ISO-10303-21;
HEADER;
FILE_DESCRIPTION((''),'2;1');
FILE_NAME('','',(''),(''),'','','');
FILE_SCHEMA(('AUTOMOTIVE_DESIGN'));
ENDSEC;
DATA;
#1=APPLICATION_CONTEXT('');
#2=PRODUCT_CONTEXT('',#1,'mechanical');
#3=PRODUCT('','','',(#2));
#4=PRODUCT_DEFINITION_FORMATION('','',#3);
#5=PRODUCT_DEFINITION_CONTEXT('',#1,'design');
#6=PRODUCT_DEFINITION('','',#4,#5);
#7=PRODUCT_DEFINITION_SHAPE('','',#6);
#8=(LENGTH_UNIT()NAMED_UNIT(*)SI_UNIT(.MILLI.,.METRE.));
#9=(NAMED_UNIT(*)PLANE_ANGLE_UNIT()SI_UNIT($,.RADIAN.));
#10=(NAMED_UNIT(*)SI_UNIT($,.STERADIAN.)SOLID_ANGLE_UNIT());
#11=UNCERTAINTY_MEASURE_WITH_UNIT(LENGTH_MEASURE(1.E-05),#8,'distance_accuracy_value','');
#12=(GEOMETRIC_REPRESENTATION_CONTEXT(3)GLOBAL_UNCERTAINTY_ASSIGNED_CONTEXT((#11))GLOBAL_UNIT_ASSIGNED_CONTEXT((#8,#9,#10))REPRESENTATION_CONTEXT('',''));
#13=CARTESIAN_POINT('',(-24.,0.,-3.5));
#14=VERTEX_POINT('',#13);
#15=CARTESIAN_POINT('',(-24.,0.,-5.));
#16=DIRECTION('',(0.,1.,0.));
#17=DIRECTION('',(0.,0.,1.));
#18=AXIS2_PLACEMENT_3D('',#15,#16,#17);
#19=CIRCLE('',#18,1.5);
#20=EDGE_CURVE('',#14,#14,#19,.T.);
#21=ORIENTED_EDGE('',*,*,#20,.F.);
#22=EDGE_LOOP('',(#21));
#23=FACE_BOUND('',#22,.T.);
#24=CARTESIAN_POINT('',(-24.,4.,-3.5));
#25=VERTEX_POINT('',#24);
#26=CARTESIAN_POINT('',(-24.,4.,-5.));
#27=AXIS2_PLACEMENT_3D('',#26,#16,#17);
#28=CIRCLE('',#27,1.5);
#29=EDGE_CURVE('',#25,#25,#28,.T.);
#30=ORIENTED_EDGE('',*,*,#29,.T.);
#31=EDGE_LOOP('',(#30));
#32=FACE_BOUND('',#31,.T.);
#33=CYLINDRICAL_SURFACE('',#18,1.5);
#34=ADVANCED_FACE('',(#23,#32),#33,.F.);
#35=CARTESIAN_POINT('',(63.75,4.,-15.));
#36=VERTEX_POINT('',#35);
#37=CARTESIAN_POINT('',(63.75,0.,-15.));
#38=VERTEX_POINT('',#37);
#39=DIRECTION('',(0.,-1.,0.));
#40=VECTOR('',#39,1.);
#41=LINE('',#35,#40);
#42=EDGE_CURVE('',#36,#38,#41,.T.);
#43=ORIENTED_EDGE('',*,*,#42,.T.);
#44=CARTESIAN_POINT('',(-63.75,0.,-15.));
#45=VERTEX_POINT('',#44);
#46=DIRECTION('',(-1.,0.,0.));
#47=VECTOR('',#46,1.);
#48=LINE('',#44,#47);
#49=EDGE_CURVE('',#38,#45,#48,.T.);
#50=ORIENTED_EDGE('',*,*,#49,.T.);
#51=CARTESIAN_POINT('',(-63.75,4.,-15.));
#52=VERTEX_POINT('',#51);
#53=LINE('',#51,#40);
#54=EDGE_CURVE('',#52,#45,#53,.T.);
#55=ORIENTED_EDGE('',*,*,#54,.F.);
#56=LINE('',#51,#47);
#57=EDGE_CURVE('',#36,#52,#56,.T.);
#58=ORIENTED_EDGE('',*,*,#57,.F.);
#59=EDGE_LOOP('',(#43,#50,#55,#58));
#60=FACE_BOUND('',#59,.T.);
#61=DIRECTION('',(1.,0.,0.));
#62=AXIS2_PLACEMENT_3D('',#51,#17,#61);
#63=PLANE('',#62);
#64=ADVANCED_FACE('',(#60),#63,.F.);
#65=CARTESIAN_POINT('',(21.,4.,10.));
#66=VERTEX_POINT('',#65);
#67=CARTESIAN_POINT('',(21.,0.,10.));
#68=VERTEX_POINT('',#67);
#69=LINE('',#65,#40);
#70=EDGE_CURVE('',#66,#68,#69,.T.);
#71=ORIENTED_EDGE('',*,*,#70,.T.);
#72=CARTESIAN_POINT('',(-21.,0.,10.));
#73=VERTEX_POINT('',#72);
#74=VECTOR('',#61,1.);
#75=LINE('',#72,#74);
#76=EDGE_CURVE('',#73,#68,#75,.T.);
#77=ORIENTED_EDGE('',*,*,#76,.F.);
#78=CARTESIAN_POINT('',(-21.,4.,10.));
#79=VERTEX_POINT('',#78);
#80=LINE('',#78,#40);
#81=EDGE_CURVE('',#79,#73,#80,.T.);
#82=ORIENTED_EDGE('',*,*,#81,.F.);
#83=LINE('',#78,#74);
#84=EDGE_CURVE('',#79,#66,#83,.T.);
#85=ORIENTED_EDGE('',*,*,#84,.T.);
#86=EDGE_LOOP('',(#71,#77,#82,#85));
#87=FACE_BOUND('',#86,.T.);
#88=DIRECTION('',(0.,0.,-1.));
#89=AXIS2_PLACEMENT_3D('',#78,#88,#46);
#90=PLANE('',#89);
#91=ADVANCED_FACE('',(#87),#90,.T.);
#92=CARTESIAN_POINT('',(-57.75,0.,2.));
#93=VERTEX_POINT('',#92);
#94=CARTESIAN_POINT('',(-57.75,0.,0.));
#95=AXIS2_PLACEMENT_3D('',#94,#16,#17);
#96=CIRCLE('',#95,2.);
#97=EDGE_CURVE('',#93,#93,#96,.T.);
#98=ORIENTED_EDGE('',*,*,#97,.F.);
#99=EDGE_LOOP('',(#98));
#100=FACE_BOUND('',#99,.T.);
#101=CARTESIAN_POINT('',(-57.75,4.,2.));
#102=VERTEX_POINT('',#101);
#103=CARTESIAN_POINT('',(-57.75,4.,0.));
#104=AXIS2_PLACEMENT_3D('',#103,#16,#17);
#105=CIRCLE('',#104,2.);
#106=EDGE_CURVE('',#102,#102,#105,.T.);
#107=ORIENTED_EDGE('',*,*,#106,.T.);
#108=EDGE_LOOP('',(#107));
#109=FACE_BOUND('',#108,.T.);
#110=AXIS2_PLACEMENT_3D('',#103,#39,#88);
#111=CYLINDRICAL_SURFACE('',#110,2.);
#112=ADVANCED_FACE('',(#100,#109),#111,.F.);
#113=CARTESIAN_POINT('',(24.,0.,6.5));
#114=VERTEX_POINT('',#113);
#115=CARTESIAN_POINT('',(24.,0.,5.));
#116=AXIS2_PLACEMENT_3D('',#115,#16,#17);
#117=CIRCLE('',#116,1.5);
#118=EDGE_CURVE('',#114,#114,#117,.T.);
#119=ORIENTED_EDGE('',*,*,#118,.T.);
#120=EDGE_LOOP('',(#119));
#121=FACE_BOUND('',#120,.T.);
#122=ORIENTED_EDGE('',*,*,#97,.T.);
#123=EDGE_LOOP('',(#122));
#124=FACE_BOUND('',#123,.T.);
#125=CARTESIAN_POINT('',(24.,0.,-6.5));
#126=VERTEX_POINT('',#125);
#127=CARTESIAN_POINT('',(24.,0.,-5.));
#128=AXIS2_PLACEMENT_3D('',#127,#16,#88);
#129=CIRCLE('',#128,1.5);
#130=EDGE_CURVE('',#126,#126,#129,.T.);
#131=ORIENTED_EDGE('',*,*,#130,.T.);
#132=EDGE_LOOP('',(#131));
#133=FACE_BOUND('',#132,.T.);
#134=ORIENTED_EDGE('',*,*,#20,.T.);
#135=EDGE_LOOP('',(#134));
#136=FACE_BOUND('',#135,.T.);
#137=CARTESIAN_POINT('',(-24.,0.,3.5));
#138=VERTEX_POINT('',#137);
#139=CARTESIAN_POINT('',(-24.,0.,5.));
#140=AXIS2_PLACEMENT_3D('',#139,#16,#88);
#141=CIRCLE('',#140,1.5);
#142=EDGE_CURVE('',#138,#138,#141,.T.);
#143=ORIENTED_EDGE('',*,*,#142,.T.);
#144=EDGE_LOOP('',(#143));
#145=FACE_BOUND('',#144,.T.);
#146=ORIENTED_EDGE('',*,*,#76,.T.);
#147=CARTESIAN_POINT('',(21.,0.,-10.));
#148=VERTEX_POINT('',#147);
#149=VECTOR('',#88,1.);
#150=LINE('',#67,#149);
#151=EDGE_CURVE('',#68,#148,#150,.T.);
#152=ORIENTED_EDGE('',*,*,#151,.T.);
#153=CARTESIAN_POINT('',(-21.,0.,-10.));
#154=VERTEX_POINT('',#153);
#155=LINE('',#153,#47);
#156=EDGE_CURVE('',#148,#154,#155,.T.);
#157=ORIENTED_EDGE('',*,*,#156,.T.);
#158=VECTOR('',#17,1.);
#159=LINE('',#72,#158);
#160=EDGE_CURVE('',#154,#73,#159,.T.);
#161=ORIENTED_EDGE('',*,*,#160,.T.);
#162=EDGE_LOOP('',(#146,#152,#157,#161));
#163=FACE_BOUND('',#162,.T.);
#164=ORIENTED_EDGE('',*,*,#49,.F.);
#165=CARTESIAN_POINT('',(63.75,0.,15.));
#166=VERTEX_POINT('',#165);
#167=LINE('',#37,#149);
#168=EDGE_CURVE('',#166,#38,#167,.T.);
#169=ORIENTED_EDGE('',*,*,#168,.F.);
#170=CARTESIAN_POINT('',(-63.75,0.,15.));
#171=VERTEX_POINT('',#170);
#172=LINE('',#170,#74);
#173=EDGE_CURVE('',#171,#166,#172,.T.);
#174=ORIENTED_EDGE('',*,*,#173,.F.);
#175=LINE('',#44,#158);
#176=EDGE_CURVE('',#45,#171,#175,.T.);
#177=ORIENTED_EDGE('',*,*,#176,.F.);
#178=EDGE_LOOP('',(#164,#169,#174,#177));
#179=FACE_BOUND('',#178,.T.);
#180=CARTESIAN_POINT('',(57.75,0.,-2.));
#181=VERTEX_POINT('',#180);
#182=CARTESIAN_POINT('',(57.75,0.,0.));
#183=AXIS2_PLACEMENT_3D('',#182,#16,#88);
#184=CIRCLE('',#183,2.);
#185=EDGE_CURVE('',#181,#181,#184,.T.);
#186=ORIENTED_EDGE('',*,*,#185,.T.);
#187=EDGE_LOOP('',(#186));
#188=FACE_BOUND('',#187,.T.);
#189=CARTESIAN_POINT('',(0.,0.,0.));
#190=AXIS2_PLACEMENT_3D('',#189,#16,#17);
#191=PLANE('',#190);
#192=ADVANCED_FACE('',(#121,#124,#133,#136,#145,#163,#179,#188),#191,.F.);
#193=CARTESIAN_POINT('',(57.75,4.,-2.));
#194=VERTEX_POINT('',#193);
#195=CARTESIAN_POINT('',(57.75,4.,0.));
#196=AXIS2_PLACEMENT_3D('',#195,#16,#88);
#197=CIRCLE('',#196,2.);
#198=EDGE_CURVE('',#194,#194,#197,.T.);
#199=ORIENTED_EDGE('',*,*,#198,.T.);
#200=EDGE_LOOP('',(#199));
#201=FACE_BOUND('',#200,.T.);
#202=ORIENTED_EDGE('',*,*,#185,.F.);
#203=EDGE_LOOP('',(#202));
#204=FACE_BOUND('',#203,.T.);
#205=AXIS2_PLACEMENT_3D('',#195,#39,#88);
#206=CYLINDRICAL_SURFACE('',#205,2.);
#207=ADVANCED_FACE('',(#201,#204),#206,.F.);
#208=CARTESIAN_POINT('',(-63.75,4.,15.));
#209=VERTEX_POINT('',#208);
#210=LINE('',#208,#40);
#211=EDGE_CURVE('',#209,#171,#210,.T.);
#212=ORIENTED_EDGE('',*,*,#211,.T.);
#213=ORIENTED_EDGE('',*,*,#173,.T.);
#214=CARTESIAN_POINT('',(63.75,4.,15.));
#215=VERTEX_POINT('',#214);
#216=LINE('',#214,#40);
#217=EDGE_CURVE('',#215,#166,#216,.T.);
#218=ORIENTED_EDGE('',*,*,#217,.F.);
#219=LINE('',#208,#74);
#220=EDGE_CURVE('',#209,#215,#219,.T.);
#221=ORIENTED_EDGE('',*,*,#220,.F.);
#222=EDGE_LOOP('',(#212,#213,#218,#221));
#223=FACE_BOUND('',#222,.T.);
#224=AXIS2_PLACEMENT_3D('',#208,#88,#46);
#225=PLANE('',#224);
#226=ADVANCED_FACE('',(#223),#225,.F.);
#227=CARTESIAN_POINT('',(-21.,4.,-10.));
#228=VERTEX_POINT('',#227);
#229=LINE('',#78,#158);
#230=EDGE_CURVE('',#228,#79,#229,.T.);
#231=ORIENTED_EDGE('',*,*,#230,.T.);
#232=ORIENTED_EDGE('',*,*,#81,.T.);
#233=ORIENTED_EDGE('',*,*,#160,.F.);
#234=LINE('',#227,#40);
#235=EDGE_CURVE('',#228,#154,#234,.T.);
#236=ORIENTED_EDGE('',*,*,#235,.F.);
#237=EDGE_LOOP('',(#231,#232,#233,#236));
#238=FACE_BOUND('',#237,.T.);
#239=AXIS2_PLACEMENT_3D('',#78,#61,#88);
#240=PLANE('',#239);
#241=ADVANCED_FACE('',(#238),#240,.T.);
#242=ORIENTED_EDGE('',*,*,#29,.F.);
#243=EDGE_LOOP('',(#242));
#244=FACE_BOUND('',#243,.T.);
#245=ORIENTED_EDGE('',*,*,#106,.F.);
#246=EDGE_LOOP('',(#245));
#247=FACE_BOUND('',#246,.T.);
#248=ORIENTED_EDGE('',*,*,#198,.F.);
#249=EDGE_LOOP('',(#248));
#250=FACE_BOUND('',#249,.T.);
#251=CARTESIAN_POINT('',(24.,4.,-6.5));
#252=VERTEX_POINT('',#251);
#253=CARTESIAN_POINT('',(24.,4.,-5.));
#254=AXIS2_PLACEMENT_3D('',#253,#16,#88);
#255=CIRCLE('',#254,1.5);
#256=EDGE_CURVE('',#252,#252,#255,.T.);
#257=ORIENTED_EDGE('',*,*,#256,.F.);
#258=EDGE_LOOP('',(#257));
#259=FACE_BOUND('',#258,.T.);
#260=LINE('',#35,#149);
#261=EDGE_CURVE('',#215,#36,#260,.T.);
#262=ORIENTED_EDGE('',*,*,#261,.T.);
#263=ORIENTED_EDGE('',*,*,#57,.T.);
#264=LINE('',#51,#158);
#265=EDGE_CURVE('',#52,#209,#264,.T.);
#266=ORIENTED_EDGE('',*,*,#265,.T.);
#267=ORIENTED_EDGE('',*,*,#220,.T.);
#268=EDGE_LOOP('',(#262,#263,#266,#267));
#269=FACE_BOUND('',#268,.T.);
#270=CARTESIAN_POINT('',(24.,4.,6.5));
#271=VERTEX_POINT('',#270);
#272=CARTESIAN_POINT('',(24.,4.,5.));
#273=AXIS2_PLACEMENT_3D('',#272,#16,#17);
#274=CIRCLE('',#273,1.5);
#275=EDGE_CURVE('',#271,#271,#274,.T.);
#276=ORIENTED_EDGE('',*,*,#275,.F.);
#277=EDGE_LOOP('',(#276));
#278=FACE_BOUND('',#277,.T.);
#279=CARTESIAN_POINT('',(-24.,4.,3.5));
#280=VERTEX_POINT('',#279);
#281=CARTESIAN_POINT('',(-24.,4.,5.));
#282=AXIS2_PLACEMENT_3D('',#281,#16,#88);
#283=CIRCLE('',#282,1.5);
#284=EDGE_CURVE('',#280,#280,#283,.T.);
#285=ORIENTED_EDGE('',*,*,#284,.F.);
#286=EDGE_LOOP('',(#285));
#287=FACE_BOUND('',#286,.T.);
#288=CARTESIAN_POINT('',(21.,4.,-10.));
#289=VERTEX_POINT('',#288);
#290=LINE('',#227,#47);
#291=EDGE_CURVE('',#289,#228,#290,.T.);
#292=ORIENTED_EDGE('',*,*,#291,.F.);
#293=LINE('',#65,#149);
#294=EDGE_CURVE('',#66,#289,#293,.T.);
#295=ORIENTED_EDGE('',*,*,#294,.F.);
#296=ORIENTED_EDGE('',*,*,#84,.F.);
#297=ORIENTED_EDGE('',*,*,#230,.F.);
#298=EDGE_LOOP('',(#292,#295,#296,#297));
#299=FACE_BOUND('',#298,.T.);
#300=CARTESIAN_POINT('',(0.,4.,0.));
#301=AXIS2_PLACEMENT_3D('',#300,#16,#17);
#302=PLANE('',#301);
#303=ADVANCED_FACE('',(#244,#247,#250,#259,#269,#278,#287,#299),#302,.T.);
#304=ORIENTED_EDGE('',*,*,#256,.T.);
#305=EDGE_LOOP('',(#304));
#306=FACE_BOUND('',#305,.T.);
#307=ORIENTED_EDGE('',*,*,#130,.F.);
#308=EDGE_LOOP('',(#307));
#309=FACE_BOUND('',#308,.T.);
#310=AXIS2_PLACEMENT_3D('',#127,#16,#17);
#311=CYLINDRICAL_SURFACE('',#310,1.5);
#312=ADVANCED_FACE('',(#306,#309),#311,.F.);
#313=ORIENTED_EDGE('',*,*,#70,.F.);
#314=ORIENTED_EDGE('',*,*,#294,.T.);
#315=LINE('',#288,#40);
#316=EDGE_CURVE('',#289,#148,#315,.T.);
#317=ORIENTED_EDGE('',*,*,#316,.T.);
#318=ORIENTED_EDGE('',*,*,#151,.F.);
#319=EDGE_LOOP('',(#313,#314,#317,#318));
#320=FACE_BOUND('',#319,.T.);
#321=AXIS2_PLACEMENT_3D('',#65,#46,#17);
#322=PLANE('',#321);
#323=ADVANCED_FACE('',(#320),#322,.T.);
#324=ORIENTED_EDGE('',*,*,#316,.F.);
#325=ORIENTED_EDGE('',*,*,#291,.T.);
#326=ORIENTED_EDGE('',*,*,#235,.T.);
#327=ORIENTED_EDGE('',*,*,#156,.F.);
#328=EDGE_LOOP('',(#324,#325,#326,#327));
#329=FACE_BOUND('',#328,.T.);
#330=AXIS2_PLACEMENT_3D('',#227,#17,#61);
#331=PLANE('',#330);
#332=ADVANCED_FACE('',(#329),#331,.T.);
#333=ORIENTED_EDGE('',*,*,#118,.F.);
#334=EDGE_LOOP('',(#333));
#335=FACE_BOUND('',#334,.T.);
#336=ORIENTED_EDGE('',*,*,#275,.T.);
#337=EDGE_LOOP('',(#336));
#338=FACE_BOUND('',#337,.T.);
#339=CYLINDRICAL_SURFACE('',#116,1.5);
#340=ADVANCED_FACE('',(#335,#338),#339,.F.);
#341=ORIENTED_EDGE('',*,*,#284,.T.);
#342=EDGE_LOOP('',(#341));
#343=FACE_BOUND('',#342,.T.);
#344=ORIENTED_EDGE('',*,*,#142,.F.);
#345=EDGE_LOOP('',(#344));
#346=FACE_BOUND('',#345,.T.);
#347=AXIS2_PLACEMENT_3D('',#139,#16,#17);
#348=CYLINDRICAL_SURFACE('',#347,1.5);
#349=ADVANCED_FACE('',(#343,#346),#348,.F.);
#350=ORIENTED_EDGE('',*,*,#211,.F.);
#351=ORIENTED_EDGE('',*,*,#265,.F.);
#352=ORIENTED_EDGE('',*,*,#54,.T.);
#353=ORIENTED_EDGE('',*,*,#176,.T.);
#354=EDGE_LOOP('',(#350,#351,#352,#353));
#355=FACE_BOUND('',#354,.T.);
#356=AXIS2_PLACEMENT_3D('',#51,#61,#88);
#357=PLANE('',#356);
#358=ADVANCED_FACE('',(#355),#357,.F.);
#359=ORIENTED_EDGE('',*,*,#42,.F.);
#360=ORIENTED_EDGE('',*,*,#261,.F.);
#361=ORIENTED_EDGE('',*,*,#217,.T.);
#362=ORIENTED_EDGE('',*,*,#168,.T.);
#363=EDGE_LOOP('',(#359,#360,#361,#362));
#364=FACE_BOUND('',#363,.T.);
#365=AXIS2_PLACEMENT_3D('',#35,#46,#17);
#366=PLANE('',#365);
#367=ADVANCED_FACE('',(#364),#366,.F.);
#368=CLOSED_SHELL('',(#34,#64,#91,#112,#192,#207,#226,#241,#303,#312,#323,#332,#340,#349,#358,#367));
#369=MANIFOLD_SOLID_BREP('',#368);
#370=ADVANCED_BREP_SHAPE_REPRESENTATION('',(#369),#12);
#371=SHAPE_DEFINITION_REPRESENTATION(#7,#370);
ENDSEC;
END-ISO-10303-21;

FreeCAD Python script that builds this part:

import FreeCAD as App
import Part
import Sketcher
from FreeCAD import Vector
Q = App.Units.Quantity

doc = App.newDocument("Part")
body = doc.addObject("PartDesign::Body", "Body")

sketch1 = body.newObject("Sketcher::SketchObject", "Sketch")
sketch1.AttachmentSupport = (doc.getObject("XZ_Plane"), [""])
sketch1.MapMode = "FlatFace"
sketch1.addGeometry([
    Part.LineSegment(Vector(-63.8, -15, 0), Vector(-63.8, 15, 0)),
    Part.LineSegment(Vector(-63.8, 15, 0), Vector(63.8, 15, 0)),
    Part.LineSegment(Vector(63.8, 15, 0), Vector(63.8, -15, 0)),
    Part.LineSegment(Vector(63.8, -15, 0), Vector(-63.8, -15, 0)),
    Part.Circle(Vector(-57.8, 0, 0), Vector(0, 0, 1), 2),
    Part.LineSegment(Vector(21, 10, 0), Vector(-21, 10, 0)),
    Part.LineSegment(Vector(-21, 10, 0), Vector(-21, -10, 0)),
    Part.LineSegment(Vector(-21, -10, 0), Vector(21, -10, 0)),
    Part.LineSegment(Vector(21, -10, 0), Vector(21, 10, 0)),
    Part.Circle(Vector(57.8, 0, 0), Vector(0, 0, 1), 2),
], False)
sketch1.addConstraint([
    Sketcher.Constraint("Coincident", 0, 2, 1, 1),
    Sketcher.Constraint("Coincident", 1, 2, 2, 1),
    Sketcher.Constraint("Coincident", 2, 2, 3, 1),
    Sketcher.Constraint("Coincident", 3, 2, 0, 1),
    Sketcher.Constraint("Coincident", 5, 2, 6, 1),
    Sketcher.Constraint("Coincident", 6, 2, 7, 1),
    Sketcher.Constraint("Coincident", 7, 2, 8, 1),
    Sketcher.Constraint("Coincident", 8, 2, 5, 1),
    Sketcher.Constraint("Vertical", 0),
    Sketcher.Constraint("Horizontal", 1),
    Sketcher.Constraint("Vertical", 2),
    Sketcher.Constraint("Horizontal", 3),
    Sketcher.Constraint("Horizontal", 5),
    Sketcher.Constraint("Vertical", 6),
    Sketcher.Constraint("Horizontal", 7),
    Sketcher.Constraint("Vertical", 8),
    Sketcher.Constraint("Equal", 4, 9),
    Sketcher.Constraint("Symmetric", 4, 3, 9, 3, -1, 1),
    Sketcher.Constraint("Symmetric", 0, 2, 2, 2, -1, 1),
    Sketcher.Constraint("Symmetric", 5, 2, 7, 2, -1, 1),
    Sketcher.Constraint("PointOnObject", 4, 3, -1),
    Sketcher.Constraint("Diameter", 4, Q("4 mm")),
    Sketcher.Constraint("DistanceX", 5, 2, 5, 1, Q("42 mm")),
    Sketcher.Constraint("DistanceY", 0, 1, 0, 2, Q("30 mm")),
    Sketcher.Constraint("DistanceY", 6, 2, 6, 1, Q("20 mm")),
    Sketcher.Constraint("DistanceX", 1, 1, 1, 2, Q("127.5 mm")),
    Sketcher.Constraint("DistanceX", 0, 2, 4, 3, Q("6 mm")),
])
pad1 = body.newObject("PartDesign::Pad", "Pad")
pad1.Profile = sketch1
pad1.Length = 4
pad1.Reversed = True

sketch2 = body.newObject("Sketcher::SketchObject", "Sketch001")
sketch2.AttachmentSupport = (doc.getObject("XZ_Plane"), [""])
sketch2.MapMode = "FlatFace"
sketch2.AttachmentOffset = App.Placement(Vector(0, 0, -4), App.Rotation())
sketch2.addGeometry([
    Part.Circle(Vector(-24, -5, 0), Vector(0, 0, 1), 1.5),
    Part.Circle(Vector(-24, 5, 0), Vector(0, 0, 1), 1.5),
    Part.Circle(Vector(24, 5, 0), Vector(0, 0, 1), 1.5),
    Part.Circle(Vector(24, -5, 0), Vector(0, 0, 1), 1.5),
], False)
sketch2.addConstraint([
    Sketcher.Constraint("Equal", 0, 1),
    Sketcher.Constraint("Equal", 1, 2),
    Sketcher.Constraint("Equal", 2, 3),
    Sketcher.Constraint("Symmetric", 0, 3, 2, 3, -1, 1),
    Sketcher.Constraint("Symmetric", 1, 3, 3, 3, -1, 1),
    Sketcher.Constraint("Symmetric", 1, 3, 2, 3, -2),
    Sketcher.Constraint("Diameter", 0, Q("3 mm")),
    Sketcher.Constraint("DistanceX", 0, 3, -1, 1, Q("24 mm")),
    Sketcher.Constraint("DistanceY", 0, 3, -1, 1, Q("5 mm")),
])
pocket1 = body.newObject("PartDesign::Pocket", "Pocket")
pocket1.Profile = sketch2
pocket1.Type = "ThroughAll"
pocket1.Reversed = True

doc.recompute()
